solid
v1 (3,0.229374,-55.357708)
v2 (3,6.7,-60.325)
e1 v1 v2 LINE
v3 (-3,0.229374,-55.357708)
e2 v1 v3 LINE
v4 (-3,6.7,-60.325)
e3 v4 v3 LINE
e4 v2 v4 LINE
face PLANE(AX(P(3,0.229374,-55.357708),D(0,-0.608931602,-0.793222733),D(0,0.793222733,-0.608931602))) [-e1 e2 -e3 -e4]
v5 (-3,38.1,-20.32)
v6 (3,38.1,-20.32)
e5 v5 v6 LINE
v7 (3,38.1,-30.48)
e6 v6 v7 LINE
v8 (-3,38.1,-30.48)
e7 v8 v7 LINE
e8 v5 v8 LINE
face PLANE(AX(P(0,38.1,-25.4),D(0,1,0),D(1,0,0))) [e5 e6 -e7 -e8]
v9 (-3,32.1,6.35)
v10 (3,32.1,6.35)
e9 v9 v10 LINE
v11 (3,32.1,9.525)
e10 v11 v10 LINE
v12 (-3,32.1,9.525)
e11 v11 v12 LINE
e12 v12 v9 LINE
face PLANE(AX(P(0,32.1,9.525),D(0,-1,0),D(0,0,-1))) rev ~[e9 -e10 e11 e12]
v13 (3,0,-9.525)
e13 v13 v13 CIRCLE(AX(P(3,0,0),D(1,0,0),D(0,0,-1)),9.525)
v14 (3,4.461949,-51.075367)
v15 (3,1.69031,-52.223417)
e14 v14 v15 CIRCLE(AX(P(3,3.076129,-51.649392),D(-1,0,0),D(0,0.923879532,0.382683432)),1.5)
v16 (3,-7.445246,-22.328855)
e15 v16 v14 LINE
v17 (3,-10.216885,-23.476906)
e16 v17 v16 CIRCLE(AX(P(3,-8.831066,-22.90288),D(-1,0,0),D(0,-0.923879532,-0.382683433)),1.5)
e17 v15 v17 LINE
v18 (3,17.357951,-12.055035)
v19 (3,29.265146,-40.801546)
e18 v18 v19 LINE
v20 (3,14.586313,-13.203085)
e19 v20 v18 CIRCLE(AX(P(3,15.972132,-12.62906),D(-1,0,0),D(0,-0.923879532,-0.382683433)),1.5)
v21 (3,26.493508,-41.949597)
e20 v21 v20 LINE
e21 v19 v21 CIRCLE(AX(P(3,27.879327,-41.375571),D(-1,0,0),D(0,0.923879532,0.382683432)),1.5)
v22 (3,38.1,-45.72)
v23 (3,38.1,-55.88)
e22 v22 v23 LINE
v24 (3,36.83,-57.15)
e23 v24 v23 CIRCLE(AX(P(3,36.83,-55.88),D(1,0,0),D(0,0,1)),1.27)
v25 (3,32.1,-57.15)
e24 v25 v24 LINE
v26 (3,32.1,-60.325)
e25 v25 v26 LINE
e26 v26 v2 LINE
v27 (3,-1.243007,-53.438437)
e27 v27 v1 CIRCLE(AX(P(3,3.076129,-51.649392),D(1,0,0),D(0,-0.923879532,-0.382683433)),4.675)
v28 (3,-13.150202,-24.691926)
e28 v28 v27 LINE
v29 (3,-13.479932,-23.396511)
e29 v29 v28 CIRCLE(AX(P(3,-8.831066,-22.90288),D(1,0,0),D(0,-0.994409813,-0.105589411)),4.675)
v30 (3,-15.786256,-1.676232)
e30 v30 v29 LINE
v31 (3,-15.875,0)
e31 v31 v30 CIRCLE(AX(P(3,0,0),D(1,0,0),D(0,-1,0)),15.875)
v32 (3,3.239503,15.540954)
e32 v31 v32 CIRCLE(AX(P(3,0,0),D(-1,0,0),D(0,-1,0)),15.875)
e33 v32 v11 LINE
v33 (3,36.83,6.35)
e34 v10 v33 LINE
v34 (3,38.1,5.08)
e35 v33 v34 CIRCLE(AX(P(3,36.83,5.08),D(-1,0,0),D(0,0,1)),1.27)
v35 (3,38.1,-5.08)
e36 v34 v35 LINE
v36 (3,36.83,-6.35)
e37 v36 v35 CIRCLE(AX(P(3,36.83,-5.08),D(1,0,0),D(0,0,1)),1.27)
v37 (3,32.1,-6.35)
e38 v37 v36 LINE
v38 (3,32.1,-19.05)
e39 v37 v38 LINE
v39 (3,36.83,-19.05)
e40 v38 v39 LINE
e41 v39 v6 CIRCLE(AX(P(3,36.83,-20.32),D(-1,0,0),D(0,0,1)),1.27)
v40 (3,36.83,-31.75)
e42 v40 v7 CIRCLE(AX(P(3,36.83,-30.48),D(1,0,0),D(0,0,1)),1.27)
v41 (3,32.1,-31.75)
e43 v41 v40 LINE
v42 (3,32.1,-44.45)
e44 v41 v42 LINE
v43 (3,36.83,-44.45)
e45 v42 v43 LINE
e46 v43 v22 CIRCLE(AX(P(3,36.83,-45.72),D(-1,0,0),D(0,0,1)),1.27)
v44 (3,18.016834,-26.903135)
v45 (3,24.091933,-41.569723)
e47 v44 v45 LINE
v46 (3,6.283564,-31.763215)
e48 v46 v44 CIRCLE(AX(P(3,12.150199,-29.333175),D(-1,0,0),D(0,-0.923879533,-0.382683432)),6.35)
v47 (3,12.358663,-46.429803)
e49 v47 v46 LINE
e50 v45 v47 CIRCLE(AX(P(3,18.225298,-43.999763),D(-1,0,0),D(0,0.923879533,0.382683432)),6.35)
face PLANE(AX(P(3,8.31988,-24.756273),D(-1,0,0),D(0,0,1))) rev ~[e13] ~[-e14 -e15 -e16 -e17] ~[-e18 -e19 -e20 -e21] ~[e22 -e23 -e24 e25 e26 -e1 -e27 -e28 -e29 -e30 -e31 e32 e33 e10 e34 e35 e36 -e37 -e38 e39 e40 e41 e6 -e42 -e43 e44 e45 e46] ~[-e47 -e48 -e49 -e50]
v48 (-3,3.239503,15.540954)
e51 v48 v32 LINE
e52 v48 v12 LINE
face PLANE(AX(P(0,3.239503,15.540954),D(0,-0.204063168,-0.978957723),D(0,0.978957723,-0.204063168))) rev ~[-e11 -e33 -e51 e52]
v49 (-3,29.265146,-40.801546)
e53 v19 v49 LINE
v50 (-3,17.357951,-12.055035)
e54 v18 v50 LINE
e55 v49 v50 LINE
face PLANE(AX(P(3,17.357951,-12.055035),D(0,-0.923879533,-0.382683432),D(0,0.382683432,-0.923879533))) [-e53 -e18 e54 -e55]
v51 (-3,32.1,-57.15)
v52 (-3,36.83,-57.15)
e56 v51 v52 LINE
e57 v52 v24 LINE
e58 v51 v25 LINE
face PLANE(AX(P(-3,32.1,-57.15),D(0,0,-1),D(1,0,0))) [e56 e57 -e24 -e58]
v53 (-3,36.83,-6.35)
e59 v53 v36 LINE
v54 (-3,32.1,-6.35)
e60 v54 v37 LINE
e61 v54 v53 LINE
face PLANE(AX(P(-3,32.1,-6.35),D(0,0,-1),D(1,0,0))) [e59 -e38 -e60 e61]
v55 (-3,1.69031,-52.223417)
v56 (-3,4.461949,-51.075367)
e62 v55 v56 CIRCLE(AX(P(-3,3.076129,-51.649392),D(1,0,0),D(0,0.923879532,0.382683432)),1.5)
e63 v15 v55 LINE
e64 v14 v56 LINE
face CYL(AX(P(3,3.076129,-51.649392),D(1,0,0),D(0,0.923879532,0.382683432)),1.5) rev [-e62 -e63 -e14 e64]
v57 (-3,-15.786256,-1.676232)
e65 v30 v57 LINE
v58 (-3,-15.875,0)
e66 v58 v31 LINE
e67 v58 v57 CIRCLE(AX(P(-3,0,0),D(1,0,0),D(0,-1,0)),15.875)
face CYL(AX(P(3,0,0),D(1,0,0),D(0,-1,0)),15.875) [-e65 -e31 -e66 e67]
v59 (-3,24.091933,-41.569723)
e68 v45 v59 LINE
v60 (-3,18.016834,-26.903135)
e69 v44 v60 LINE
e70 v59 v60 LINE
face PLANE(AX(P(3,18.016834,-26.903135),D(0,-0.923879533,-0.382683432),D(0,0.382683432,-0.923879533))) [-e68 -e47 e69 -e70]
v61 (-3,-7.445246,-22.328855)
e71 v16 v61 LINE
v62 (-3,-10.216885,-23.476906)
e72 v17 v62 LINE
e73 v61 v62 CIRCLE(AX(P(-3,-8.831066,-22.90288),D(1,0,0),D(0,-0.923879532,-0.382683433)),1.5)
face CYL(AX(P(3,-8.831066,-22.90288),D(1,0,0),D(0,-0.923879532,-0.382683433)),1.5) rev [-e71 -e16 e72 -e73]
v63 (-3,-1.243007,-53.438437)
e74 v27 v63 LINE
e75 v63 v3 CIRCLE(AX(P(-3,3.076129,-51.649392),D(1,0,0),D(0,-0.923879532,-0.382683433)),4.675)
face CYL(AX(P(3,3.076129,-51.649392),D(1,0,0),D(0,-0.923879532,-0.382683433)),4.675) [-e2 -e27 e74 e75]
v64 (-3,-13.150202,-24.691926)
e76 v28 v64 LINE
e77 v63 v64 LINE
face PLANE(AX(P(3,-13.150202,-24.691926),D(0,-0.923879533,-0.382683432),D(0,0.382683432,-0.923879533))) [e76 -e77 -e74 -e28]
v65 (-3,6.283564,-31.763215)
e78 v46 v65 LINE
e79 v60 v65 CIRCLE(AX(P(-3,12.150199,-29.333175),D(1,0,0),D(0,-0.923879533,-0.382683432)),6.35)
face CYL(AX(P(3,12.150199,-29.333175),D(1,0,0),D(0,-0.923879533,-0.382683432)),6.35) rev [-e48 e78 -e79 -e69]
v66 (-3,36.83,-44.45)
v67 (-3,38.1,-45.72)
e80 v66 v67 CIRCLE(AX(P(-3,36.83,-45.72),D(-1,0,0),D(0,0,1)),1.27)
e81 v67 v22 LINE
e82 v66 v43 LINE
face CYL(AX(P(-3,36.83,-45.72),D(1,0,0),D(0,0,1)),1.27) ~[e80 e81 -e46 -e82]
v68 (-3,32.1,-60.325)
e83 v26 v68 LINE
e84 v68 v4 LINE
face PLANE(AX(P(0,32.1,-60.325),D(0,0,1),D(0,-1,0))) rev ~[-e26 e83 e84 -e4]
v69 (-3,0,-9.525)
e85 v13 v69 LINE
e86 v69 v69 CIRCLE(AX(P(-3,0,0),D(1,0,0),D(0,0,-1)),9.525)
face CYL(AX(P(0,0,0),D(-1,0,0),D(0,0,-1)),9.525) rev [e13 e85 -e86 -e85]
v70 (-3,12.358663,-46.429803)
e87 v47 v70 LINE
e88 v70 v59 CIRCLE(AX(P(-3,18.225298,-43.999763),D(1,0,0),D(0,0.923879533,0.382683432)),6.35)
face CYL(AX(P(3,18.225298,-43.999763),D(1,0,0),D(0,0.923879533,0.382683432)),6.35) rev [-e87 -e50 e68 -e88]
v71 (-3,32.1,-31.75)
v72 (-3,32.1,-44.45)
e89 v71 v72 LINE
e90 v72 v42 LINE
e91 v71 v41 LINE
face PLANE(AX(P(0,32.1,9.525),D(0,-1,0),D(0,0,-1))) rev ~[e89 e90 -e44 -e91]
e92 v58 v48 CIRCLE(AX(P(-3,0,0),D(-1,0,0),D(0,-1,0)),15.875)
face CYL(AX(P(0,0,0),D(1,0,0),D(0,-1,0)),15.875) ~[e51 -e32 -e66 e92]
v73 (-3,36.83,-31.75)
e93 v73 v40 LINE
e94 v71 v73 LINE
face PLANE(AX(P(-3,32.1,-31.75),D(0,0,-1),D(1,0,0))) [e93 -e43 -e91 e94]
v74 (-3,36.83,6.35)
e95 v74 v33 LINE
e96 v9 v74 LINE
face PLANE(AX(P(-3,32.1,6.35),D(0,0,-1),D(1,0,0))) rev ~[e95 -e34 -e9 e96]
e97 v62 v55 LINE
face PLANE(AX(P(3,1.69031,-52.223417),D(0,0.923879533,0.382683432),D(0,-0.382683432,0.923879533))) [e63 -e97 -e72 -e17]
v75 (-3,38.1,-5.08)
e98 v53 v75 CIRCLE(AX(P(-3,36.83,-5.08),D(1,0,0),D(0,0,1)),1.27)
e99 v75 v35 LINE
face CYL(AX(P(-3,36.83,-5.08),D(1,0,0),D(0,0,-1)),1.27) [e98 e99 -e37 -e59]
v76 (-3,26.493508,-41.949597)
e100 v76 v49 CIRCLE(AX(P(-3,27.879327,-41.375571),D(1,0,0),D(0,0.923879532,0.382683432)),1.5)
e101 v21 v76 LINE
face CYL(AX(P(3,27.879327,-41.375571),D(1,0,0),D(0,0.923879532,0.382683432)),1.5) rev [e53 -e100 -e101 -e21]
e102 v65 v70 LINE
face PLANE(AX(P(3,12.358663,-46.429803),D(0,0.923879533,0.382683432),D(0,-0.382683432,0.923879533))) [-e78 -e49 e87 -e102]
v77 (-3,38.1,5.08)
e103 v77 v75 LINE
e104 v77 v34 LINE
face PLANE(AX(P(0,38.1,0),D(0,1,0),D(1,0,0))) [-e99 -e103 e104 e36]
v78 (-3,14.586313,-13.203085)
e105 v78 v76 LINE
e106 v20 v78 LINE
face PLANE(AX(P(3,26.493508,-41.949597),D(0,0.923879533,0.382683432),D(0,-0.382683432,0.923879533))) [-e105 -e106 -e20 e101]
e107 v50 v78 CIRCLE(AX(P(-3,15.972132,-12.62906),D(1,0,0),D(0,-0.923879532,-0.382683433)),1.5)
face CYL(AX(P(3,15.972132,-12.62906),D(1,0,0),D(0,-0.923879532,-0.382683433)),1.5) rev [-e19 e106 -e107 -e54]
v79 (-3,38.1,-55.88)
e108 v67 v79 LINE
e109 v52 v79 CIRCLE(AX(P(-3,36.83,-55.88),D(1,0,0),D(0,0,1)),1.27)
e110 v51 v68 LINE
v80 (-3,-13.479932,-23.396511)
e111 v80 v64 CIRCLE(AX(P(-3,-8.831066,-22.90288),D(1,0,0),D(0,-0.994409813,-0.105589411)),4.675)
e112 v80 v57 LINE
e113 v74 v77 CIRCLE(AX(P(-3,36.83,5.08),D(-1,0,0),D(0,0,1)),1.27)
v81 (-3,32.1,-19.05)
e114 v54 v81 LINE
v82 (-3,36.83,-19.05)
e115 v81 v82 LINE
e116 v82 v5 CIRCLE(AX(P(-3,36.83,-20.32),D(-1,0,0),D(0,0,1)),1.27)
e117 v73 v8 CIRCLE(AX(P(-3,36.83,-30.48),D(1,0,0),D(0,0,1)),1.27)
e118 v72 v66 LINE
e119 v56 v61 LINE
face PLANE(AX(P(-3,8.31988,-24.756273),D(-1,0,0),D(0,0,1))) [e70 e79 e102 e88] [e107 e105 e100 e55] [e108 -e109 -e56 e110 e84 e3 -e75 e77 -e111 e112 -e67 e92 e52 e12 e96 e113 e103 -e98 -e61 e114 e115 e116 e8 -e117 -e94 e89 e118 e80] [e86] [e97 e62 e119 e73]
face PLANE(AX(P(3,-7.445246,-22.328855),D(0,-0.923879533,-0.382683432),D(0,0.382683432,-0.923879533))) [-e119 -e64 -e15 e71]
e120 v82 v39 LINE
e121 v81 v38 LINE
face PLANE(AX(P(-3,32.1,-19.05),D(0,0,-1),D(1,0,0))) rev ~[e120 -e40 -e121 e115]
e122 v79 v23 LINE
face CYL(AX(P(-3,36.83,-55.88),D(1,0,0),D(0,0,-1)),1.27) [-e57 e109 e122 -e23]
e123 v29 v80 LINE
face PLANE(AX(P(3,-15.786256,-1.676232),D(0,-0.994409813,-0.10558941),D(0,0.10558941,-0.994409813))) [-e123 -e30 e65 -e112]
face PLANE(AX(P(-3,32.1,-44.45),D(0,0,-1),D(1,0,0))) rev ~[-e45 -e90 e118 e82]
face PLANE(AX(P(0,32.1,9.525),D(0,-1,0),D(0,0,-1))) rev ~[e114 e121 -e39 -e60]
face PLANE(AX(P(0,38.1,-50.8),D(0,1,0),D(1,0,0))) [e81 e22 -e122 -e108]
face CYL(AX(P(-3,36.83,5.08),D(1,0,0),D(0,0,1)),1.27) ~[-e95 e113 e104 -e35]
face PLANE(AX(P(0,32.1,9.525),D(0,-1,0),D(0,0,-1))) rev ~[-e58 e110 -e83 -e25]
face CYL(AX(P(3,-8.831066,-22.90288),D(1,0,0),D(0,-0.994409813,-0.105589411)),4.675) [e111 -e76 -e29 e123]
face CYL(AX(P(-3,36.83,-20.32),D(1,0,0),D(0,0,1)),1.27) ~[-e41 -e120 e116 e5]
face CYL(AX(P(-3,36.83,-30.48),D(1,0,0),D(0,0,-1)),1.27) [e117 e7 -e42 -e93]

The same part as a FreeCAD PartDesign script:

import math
import FreeCAD as App
import Part
import Sketcher
from FreeCAD import Vector
Q = App.Units.Quantity


def edges_at(feature, points):
    """Names of the edges that pass closest to the given points."""
    edges = feature.Shape.Edges
    near = lambda p: min(range(len(edges)), key=lambda i: edges[i].distToShape(Part.Vertex(*p))[0])
    return sorted({f"Edge{near(p) + 1}" for p in points})


def add_polygon(sketch, points):
    """Adds a closed chain of lines whose ends are joined by coincident constraints."""
    first, n = sketch.GeometryCount, len(points)
    for a, b in zip(points, points[1:] + points[:1]):
        sketch.addGeometry(Part.LineSegment(App.Vector(*a, 0), App.Vector(*b, 0)), False)
    for i in range(n):
        sketch.addConstraint(Sketcher.Constraint("Coincident", first + i, 2, first + (i + 1) % n, 1))

doc = App.newDocument("Part")
body = doc.addObject("PartDesign::Body", "Body")

# Sketch on YZ plane
sketch1 = doc.addObject("Sketcher::SketchObject", "Sketch")
body.addObject(sketch1)
sketch1.AttachmentSupport = (doc.YZ_Plane, [""])
sketch1.MapMode = "FlatFace"
sketch1.addGeometry(Part.LineSegment(Vector(32, 10, 0), Vector(3, 16, 0)), False)
sketch1.addGeometry(Part.ArcOfCircle(Part.Circle(Vector(0, 0, 0), Vector(0, 0, 1), 16), math.radians(78), math.radians(180)), False)
sketch1.addGeometry(Part.LineSegment(Vector(-16, 0, 0), Vector(-16, -60, 0)), False)
sketch1.addGeometry(Part.LineSegment(Vector(-16, -60, 0), Vector(32, -60, 0)), False)
sketch1.addGeometry(Part.LineSegment(Vector(32, -60, 0), Vector(32, 10, 0)), False)
sketch1.addGeometry(Part.Circle(Vector(0, 0, 0), Vector(0, 0, 1), 10), False)
sketch1.addConstraint(Sketcher.Constraint("Tangent", 0, 2, 1, 1))
sketch1.addConstraint(Sketcher.Constraint("Tangent", 1, 2, 2, 1))
sketch1.addConstraint(Sketcher.Constraint("Coincident", 2, 2, 3, 1))
sketch1.addConstraint(Sketcher.Constraint("Coincident", 3, 2, 4, 1))
sketch1.addConstraint(Sketcher.Constraint("Coincident", 4, 2, 0, 1))
sketch1.addConstraint(Sketcher.Constraint("Vertical", 2))
sketch1.addConstraint(Sketcher.Constraint("Horizontal", 3))
sketch1.addConstraint(Sketcher.Constraint("Vertical", 4))
sketch1.addConstraint(Sketcher.Constraint("Coincident", 1, 3, -1, 1))
sketch1.addConstraint(Sketcher.Constraint("Coincident", 5, 3, -1, 1))
sketch1.addConstraint(Sketcher.Constraint("Diameter", 5, Q("0.75 in")))
sketch1.addConstraint(Sketcher.Constraint("Radius", 1, Q("0.625 in")))
sketch1.addConstraint(Sketcher.Constraint("DistanceY", 4, 1, 4, 2, Q("2.75 in")))
sketch1.addConstraint(Sketcher.Constraint("DistanceY", 2, 2, 2, 1, Q("2.375 in")))
sketch1.addConstraint(Sketcher.Constraint("DistanceX", 3, 1, 3, 2, 47.975))
pad1 = doc.addObject("PartDesign::Pad", "Pad")
body.addObject(pad1)
pad1.Profile = sketch1
pad1.Length = 6
pad1.Midplane = True

# Sketch on YZ plane
sketch2 = doc.addObject("Sketcher::SketchObject", "Sketch001")
body.addObject(sketch2)
sketch2.AttachmentSupport = (doc.YZ_Plane, [""])
sketch2.MapMode = "FlatFace"
sketch2.AttachmentOffset = App.Placement(Vector(0, 0, 3), App.Rotation())
sketch2.addGeometry(Part.LineSegment(Vector(-13.5, -23.4, 0), Vector(-15.8, -1.7, 0)), False)
sketch2.addGeometry(Part.ArcOfCircle(Part.Circle(Vector(0, 0, 0), Vector(0, 0, 1), 15.9), math.radians(-180), math.radians(-173.94)), False)
sketch2.addGeometry(Part.LineSegment(Vector(-15.9, 0, 0), Vector(-15.9, -60.3, 0)), False)
sketch2.addGeometry(Part.LineSegment(Vector(-15.9, -60.3, 0), Vector(6.7, -60.3, 0)), False)
sketch2.addGeometry(Part.LineSegment(Vector(6.7, -60.3, 0), Vector(0.2, -55.4, 0)), False)
sketch2.addGeometry(Part.ArcOfCircle(Part.Circle(Vector(3.1, -51.6, 0), Vector(0, 0, 1), 4.7), math.radians(-157), math.radians(-128)), False)
sketch2.addGeometry(Part.LineSegment(Vector(-1.2, -53.4, 0), Vector(-13.2, -24.7, 0)), False)
sketch2.addGeometry(Part.ArcOfCircle(Part.Circle(Vector(-8.8, -22.9, 0), Vector(0, 0, 1), 4.7), math.radians(-173.94), math.radians(-157.5)), False)
sketch2.addGeometry(Part.LineSegment(Vector(24.1, -41.6, 0), Vector(18, -26.9, 0)), False)
sketch2.addGeometry(Part.ArcOfCircle(Part.Circle(Vector(12.2, -29.3, 0), Vector(0, 0, 1), 6.3), math.radians(23), math.radians(202)), False)
sketch2.addGeometry(Part.LineSegment(Vector(6.3, -31.8, 0), Vector(12.4, -46.4, 0)), False)
sketch2.addGeometry(Part.ArcOfCircle(Part.Circle(Vector(18.2, -44, 0), Vector(0, 0, 1), 6.3), math.radians(-157), math.radians(22)), False)
sketch2.addGeometry(Part.LineSegment(Vector(4.5, -51.1, 0), Vector(-7.4, -22.3, 0)), False)
sketch2.addGeometry(Part.ArcOfCircle(Part.Circle(Vector(-8.8, -22.9, 0), Vector(0, 0, 1), 1.5), math.radians(22), math.radians(203)), False)
sketch2.addGeometry(Part.LineSegment(Vector(-10.2, -23.5, 0), Vector(1.7, -52.2, 0)), False)
sketch2.addGeometry(Part.ArcOfCircle(Part.Circle(Vector(3.1, -51.6, 0), Vector(0, 0, 1), 1.5), math.radians(-158), math.radians(23)), False)
sketch2.addGeometry(Part.LineSegment(Vector(29.3, -40.8, 0), Vector(17.4, -12.1, 0)), False)
sketch2.addGeometry(Part.ArcOfCircle(Part.Circle(Vector(16, -12.6, 0), Vector(0, 0, 1), 1.5), math.radians(23), math.radians(203)), False)
sketch2.addGeometry(Part.LineSegment(Vector(14.6, -13.2, 0), Vector(26.5, -41.9, 0)), False)
sketch2.addGeometry(Part.ArcOfCircle(Part.Circle(Vector(27.9, -41.4, 0), Vector(0, 0, 1), 1.5), math.radians(-158), math.radians(23)), False)
sketch2.addConstraint(Sketcher.Constraint("Tangent", 0, 2, 1, 2))
sketch2.addConstraint(Sketcher.Constraint("Tangent", 1, 1, 2, 1))
sketch2.addConstraint(Sketcher.Constraint("Coincident", 2, 2, 3, 1))
sketch2.addConstraint(Sketcher.Constraint("Coincident", 3, 2, 4, 1))
sketch2.addConstraint(Sketcher.Constraint("Tangent", 4, 2, 5, 2))
sketch2.addConstraint(Sketcher.Constraint("Tangent", 5, 1, 6, 1))
sketch2.addConstraint(Sketcher.Constraint("Tangent", 6, 2, 7, 2))
sketch2.addConstraint(Sketcher.Constraint("Tangent", 7, 1, 0, 1))
sketch2.addConstraint(Sketcher.Constraint("Tangent", 8, 2, 9, 1))
sketch2.addConstraint(Sketcher.Constraint("Tangent", 9, 2, 10, 1))
sketch2.addConstraint(Sketcher.Constraint("Tangent", 10, 2, 11, 1))
sketch2.addConstraint(Sketcher.Constraint("Tangent", 11, 2, 8, 1))
sketch2.addConstraint(Sketcher.Constraint("Tangent", 12, 2, 13, 1))
sketch2.addConstraint(Sketcher.Constraint("Tangent", 13, 2, 14, 1))
sketch2.addConstraint(Sketcher.Constraint("Tangent", 14, 2, 15, 1))
sketch2.addConstraint(Sketcher.Constraint("Tangent", 15, 2, 12, 1))
sketch2.addConstraint(Sketcher.Constraint("Tangent", 16, 2, 17, 1))
sketch2.addConstraint(Sketcher.Constraint("Tangent", 17, 2, 18, 1))
sketch2.addConstraint(Sketcher.Constraint("Tangent", 18, 2, 19, 1))
sketch2.addConstraint(Sketcher.Constraint("Tangent", 19, 2, 16, 1))
sketch2.addConstraint(Sketcher.Constraint("Vertical", 2))
sketch2.addConstraint(Sketcher.Constraint("Horizontal", 3))
sketch2.addConstraint(Sketcher.Constraint("Coincident", 1, 3, -1, 1))
sketch2.addConstraint(Sketcher.Constraint("Coincident", 13, 3, 7, 3))
sketch2.addConstraint(Sketcher.Constraint("Coincident", 15, 3, 5, 3))
sketch2.addConstraint(Sketcher.Constraint("Equal", 5, 7))
sketch2.addConstraint(Sketcher.Constraint("Equal", 9, 11))
sketch2.addConstraint(Sketcher.Constraint("Equal", 13, 15))
sketch2.addConstraint(Sketcher.Constraint("Equal", 15, 17))
sketch2.addConstraint(Sketcher.Constraint("Equal", 17, 19))
sketch2.addConstraint(Sketcher.Constraint("Parallel", 6, 8))
sketch2.addConstraint(Sketcher.Constraint("Parallel", 14, 16))
sketch2.addConstraint(Sketcher.Constraint("Equal", 14, 16))
sketch2.addConstraint(Sketcher.Constraint("Radius", 9, Q("0.25 in")))
sketch2.addConstraint(Sketcher.Constraint("Radius", 1, Q("0.625 in")))
sketch2.addConstraint(Sketcher.Constraint("Angle", 6, Q("112.5 deg")))
sketch2.addConstraint(Sketcher.Constraint("DistanceY", 2, 2, 2, 1, Q("2.375 in")))
sketch2.addConstraint(Sketcher.Constraint("Radius", 5, 4.675))
sketch2.addConstraint(Sketcher.Constraint("Radius", 13, 1.5))
sketch2.addConstraint(Sketcher.Constraint("Distance", 6, Q("1.225 in")))
sketch2.addConstraint(Sketcher.Constraint("Distance", 8, Q("0.625 in")))
sketch2.addConstraint(Sketcher.Constraint("DistanceX", 3, 1, 3, 2, 22.575))
sketch2.addConstraint(Sketcher.Constraint("DistanceX", 0, 2, 7, 1, Q("0.0908002 in")))
sketch2.addConstraint(Sketcher.Constraint("DistanceX", 17, 3, 8, 2, Q("0.0805001 in")))
sketch2.addConstraint(Sketcher.Constraint("DistanceX", -1, 1, 9, 3, 12.150199))
sketch2.addConstraint(Sketcher.Constraint("DistanceY", 8, 2, 16, 2, 14.848101))
sketch2.addConstraint(Sketcher.Constraint("Distance", 4, 8.157388))
sketch2.addConstraint(Sketcher.Constraint("DistanceY", 17, 3, -1, 1, 12.62906))
pocket1 = doc.addObject("PartDesign::Pocket", "Pocket")
body.addObject(pocket1)
pocket1.Profile = sketch2
pocket1.Type = "ThroughAll"

# Sketch on XZ plane
sketch3 = doc.addObject("Sketcher::SketchObject", "Sketch002")
body.addObject(sketch3)
sketch3.AttachmentSupport = (doc.XZ_Plane, [""])
sketch3.MapMode = "FlatFace"
sketch3.AttachmentOffset = App.Placement(Vector(0, 0, -32.1), App.Rotation())
add_polygon(sketch3, [(-3, -6), (-3, 6), (3, 6), (3, -6)])  # lines 0-3
sketch3.addConstraint(Sketcher.Constraint("Vertical", 0))
sketch3.addConstraint(Sketcher.Constraint("Horizontal", 1))
sketch3.addConstraint(Sketcher.Constraint("Vertical", 2))
sketch3.addConstraint(Sketcher.Constraint("Horizontal", 3))
sketch3.addConstraint(Sketcher.Constraint("Symmetric", 0, 2, 2, 2, -1, 1))
sketch3.addConstraint(Sketcher.Constraint("DistanceY", 0, 1, 0, 2, Q("0.5 in")))
sketch3.addConstraint(Sketcher.Constraint("DistanceX", 1, 1, 1, 2, 6.0))
pad2 = doc.addObject("PartDesign::Pad", "Pad001")
body.addObject(pad2)
pad2.Profile = sketch3
pad2.Length = 6
pad2.Reversed = True
doc.recompute()

fillet = doc.addObject("PartDesign::Fillet", "Fillet")
body.addObject(fillet)
fillet.Base = (pad2, edges_at(pad2, [(0, 38.1, -6.35), (0, 38.1, 6.35)]))
fillet.Radius = Q("0.05 in")
doc.recompute()

linearpattern = doc.addObject("PartDesign::LinearPattern", "LinearPattern")
body.addObject(linearpattern)
linearpattern.Originals = [pad2]
linearpattern.Direction = (doc.Z_Axis, [""])
linearpattern.Mode = "offset"
linearpattern.Offset = Q("1 in")
linearpattern.Occurrences = 3
linearpattern.Reversed = True
body.Tip = linearpattern
doc.recompute()

fillet2 = doc.addObject("PartDesign::Fillet", "Fillet001")
body.addObject(fillet2)
fillet2.Base = (linearpattern, edges_at(linearpattern, [
    (0, 38.1, -31.75),
    (0, 38.1, -19.05),
    (0, 38.1, -57.15),
    (0, 38.1, -44.45),
]))
fillet2.Radius = Q("0.05 in")

doc.recompute()
